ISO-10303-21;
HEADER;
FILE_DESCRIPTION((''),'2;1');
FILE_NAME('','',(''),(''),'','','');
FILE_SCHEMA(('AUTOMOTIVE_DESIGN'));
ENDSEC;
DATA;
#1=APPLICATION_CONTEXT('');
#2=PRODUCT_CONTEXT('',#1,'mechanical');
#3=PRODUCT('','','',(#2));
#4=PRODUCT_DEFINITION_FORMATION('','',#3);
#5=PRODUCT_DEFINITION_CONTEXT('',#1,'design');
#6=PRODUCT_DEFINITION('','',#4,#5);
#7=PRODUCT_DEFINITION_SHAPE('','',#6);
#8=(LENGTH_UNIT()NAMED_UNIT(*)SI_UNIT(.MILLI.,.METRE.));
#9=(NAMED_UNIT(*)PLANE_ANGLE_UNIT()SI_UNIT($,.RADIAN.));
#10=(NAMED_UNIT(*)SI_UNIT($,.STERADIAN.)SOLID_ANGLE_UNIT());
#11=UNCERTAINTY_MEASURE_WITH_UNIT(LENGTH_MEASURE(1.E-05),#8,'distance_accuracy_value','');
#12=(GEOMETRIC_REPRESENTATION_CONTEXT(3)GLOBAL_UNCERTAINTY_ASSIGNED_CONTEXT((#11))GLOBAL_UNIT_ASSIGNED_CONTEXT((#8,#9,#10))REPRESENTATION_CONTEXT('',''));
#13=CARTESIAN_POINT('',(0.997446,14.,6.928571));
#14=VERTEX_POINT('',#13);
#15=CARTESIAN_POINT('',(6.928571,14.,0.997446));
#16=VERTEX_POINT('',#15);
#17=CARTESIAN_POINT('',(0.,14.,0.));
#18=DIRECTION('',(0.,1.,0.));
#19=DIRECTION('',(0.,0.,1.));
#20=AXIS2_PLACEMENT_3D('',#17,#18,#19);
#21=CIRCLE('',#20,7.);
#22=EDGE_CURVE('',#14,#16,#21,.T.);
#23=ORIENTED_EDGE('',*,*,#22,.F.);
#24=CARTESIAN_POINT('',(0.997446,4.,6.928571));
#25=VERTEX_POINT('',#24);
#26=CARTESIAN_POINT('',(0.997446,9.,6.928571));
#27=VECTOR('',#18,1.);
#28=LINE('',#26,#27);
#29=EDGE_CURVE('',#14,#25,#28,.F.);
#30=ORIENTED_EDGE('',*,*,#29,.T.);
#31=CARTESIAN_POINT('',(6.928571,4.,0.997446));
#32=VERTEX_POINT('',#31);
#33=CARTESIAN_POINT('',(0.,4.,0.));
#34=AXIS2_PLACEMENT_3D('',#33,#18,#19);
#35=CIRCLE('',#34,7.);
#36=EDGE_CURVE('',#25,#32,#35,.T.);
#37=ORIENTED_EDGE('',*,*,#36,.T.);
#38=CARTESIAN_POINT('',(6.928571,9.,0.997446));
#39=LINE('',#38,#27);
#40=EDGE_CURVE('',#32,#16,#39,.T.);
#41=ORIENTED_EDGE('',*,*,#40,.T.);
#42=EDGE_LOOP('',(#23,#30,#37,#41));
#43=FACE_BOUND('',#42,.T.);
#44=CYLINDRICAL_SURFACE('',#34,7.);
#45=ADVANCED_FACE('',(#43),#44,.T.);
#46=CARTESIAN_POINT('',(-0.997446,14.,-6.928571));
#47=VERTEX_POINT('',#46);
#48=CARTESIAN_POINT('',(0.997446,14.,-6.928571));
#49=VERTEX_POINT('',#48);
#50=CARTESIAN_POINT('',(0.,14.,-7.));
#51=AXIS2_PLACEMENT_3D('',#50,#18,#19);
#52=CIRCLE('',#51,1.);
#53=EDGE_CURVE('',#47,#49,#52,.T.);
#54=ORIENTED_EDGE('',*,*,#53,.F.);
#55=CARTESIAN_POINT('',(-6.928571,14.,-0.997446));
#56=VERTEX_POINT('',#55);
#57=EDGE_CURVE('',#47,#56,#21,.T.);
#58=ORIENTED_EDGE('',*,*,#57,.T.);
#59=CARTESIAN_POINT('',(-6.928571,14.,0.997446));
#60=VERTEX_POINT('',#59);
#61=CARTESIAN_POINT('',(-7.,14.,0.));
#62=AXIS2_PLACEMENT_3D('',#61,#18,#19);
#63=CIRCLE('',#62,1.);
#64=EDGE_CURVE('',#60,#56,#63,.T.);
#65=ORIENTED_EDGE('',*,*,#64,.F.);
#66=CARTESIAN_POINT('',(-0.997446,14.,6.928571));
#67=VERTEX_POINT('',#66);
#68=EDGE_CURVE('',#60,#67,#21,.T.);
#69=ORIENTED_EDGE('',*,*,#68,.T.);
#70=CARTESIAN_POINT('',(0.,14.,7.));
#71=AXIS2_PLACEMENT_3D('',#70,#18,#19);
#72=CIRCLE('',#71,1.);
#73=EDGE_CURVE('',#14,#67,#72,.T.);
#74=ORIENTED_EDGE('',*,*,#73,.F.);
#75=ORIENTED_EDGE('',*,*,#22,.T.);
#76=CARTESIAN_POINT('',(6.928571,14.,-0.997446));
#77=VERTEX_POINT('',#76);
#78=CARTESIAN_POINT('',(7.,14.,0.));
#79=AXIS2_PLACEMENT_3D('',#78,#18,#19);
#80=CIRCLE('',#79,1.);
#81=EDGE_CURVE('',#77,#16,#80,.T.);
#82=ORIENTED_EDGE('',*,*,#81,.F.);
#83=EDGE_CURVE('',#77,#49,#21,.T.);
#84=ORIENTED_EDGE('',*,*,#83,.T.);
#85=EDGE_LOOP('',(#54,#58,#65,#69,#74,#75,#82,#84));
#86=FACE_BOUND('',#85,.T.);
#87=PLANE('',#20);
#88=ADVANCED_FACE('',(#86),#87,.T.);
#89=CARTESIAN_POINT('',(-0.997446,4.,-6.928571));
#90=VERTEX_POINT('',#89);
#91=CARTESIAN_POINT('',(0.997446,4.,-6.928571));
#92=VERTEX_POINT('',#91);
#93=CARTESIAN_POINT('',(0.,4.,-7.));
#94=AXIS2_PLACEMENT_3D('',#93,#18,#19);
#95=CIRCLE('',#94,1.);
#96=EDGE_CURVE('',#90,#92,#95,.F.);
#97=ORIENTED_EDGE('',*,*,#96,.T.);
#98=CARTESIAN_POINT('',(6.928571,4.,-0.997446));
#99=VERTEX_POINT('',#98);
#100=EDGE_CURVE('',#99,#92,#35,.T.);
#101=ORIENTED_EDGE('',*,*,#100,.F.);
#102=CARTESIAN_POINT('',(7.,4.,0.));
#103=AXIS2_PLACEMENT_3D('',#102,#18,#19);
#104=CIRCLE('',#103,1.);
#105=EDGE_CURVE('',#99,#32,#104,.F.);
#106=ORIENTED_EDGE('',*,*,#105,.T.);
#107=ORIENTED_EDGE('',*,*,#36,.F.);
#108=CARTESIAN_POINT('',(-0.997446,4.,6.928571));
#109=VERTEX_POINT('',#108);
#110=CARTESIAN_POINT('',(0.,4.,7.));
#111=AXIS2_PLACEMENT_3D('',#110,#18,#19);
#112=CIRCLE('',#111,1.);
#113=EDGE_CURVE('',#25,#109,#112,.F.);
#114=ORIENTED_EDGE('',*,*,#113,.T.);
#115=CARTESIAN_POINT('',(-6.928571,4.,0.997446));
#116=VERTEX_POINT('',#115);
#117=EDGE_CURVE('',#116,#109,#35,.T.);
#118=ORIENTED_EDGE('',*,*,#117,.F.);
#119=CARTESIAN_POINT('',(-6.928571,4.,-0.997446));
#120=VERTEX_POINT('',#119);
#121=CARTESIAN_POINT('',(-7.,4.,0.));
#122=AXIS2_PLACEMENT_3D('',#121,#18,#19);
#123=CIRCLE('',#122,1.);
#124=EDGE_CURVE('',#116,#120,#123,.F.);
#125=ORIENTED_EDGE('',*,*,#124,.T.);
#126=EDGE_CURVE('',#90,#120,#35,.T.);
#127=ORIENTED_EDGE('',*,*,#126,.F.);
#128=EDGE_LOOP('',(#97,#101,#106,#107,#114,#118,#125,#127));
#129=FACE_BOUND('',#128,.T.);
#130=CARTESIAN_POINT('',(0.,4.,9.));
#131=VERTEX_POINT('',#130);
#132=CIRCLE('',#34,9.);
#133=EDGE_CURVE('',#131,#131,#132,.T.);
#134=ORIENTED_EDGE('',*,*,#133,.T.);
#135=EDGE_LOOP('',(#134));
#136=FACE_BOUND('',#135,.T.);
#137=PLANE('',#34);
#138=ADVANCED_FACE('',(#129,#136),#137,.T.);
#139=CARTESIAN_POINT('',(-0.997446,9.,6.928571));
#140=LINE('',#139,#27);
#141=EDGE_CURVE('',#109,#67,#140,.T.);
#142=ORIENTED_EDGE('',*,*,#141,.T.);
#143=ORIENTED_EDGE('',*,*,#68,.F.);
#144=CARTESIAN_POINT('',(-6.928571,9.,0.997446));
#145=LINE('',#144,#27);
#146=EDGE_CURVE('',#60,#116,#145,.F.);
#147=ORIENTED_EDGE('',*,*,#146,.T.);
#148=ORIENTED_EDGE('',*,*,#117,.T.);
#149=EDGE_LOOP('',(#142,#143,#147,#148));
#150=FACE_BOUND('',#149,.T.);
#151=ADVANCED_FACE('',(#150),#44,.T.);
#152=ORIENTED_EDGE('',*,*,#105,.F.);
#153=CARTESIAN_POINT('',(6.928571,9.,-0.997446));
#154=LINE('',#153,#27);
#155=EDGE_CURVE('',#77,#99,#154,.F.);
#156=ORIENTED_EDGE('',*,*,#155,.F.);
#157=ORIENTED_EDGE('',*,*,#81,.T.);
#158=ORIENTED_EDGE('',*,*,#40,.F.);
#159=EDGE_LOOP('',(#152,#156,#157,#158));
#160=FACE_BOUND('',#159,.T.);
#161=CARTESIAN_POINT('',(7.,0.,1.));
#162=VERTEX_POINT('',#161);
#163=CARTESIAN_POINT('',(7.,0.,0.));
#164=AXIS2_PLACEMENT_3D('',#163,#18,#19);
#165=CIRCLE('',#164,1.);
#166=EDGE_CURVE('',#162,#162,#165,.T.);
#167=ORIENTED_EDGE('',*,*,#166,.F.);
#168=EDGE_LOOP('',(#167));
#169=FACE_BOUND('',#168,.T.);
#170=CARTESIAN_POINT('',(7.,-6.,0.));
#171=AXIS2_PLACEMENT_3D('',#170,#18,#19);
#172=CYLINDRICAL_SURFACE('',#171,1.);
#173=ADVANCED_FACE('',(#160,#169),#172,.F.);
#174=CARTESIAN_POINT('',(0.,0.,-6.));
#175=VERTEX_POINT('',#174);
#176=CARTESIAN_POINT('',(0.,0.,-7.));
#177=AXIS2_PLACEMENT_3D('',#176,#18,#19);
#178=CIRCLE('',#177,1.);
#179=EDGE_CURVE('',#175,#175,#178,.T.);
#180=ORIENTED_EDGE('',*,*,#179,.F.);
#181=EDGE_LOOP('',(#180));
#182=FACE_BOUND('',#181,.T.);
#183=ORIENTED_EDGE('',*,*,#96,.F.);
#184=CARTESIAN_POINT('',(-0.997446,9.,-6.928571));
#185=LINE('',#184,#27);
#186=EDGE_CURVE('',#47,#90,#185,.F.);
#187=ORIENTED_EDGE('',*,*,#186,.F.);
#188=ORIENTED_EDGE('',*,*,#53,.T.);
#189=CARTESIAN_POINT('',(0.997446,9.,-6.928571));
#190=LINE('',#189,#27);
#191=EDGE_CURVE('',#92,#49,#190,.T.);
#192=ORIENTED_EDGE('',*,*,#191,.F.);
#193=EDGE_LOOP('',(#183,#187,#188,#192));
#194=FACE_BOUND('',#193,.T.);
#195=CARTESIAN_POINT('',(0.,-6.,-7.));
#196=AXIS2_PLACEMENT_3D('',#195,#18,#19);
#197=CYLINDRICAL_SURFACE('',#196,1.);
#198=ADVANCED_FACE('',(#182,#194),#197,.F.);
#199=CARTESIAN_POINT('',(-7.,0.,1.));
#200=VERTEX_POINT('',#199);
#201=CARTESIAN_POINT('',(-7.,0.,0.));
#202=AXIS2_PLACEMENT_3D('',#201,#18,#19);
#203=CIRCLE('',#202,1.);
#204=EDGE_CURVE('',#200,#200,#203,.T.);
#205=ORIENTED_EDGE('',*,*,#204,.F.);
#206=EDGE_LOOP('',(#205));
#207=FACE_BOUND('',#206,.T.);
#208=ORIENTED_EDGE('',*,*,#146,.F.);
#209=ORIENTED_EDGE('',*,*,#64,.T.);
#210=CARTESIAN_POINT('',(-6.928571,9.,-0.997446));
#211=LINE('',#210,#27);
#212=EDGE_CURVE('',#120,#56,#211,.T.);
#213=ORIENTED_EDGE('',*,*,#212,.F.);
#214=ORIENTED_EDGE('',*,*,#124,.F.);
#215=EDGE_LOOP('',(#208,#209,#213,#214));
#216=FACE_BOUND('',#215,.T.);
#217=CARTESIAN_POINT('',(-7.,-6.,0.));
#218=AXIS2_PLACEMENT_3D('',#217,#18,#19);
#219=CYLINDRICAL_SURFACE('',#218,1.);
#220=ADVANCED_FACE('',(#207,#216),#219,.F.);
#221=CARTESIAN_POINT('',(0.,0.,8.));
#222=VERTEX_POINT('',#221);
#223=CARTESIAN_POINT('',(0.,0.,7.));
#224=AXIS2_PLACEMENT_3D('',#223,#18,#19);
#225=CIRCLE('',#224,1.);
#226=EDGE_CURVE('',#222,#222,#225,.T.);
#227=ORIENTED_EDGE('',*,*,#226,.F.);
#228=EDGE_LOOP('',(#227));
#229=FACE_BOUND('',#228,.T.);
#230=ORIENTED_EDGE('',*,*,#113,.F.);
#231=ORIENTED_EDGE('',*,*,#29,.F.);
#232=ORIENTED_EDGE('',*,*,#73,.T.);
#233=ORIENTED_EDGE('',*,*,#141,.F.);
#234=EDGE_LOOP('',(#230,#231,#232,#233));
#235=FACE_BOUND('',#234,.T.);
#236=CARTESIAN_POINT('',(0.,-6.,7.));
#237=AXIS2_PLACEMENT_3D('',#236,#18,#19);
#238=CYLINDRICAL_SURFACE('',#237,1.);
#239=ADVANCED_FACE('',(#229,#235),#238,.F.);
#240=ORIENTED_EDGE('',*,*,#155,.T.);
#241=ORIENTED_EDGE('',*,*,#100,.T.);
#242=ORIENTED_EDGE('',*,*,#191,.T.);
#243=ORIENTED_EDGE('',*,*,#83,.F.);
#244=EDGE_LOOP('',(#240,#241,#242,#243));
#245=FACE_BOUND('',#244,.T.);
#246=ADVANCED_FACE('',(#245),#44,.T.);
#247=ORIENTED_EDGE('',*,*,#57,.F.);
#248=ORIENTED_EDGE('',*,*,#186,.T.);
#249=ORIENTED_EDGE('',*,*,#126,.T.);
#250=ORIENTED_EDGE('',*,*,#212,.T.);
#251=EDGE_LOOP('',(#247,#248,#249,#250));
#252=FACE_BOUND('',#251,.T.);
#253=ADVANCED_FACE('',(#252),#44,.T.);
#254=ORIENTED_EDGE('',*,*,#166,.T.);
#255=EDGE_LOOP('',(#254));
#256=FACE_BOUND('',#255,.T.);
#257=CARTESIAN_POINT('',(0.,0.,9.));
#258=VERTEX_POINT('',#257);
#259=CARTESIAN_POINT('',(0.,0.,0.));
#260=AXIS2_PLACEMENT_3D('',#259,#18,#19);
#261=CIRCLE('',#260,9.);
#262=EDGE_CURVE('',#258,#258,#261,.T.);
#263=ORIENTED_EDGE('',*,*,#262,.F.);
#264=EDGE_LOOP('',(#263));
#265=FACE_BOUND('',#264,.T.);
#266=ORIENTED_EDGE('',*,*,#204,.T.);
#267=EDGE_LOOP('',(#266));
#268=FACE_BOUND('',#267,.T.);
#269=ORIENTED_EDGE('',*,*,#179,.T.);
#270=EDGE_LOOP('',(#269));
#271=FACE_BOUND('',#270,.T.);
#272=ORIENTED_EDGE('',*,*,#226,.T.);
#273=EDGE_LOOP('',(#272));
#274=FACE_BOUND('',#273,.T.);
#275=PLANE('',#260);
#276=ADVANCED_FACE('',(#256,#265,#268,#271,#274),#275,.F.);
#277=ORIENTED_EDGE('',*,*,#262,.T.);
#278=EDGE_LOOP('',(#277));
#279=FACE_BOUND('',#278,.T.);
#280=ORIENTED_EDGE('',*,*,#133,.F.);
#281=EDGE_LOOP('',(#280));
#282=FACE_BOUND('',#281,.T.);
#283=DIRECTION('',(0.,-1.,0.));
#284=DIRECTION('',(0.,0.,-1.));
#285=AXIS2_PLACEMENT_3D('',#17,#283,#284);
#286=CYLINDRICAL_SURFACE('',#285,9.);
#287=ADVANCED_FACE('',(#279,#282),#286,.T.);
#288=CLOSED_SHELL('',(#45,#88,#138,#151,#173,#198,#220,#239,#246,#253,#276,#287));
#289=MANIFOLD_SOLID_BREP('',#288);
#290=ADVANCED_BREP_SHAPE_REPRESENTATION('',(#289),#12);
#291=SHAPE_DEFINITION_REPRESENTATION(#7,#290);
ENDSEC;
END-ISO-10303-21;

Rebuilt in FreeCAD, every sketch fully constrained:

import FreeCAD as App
import Part
import Sketcher
from FreeCAD import Vector

doc = App.newDocument("Part")
body = doc.addObject("PartDesign::Body", "Body")

# Sketch on XZ plane
sketch1 = body.newObject("Sketcher::SketchObject", "Sketch")
sketch1.AttachmentSupport = (doc.getObject("XZ_Plane"), [""])
sketch1.MapMode = "FlatFace"
sketch1.addGeometry(Part.Circle(Vector(0, 0, 0), Vector(0, 0, 1), 9), False)
sketch1.addConstraint([
    Sketcher.Constraint("Coincident", 0, 3, -1, 1),
    Sketcher.Constraint("Diameter", 0, 18.0),
])
pad1 = body.newObject("PartDesign::Pad", "Pad")
pad1.Profile = sketch1
pad1.Length = 14
pad1.Reversed = True

# Sketch on XZ plane
sketch2 = body.newObject("Sketcher::SketchObject", "Sketch001")
sketch2.AttachmentSupport = (doc.getObject("XZ_Plane"), [""])
sketch2.MapMode = "FlatFace"
sketch2.AttachmentOffset = App.Placement(Vector(0, 0, -14), App.Rotation())
sketch2.addGeometry([
    Part.Circle(Vector(0, -7, 0), Vector(0, 0, 1), 1),
    Part.Circle(Vector(7, 0, 0), Vector(0, 0, 1), 1),
    Part.Circle(Vector(-7, 0, 0), Vector(0, 0, 1), 1),
    Part.Circle(Vector(0, 7, 0), Vector(0, 0, 1), 1),
], False)
sketch2.addConstraint([
    Sketcher.Constraint("Equal", 0, 1),
    Sketcher.Constraint("Equal", 1, 2),
    Sketcher.Constraint("Equal", 2, 3),
    Sketcher.Constraint("Symmetric", 1, 3, 2, 3, -1, 1),
    Sketcher.Constraint("Symmetric", 0, 3, 3, 3, -1, 1),
    Sketcher.Constraint("PointOnObject", 0, 3, -2),
    Sketcher.Constraint("PointOnObject", 1, 3, -1),
    Sketcher.Constraint("Diameter", 0, 2.0),
    Sketcher.Constraint("DistanceY", 0, 3, -1, 1, 7.0),
    Sketcher.Constraint("DistanceX", -1, 1, 1, 3, 7.0),
])
pocket1 = body.newObject("PartDesign::Pocket", "Pocket")
pocket1.Profile = sketch2
pocket1.Length = 20
pocket1.Reversed = True

# Sketch on XZ plane
sketch3 = body.newObject("Sketcher::SketchObject", "Sketch002")
sketch3.AttachmentSupport = (doc.getObject("XZ_Plane"), [""])
sketch3.MapMode = "FlatFace"
sketch3.AttachmentOffset = App.Placement(Vector(0, 0, -4), App.Rotation())
sketch3.addGeometry([
    Part.Circle(Vector(0, 0, 0), Vector(0, 0, 1), 9),
    Part.Circle(Vector(0, 0, 0), Vector(0, 0, 1), 7),
], False)
sketch3.addConstraint([
    Sketcher.Constraint("Coincident", 0, 3, -1, 1),
    Sketcher.Constraint("Coincident", 1, 3, -1, 1),
    Sketcher.Constraint("Diameter", 0, 18.0),
    Sketcher.Constraint("Diameter", 1, 14.0),
])
pocket2 = body.newObject("PartDesign::Pocket", "Pocket001")
pocket2.Profile = sketch3
pocket2.Length = 10

doc.recompute()
